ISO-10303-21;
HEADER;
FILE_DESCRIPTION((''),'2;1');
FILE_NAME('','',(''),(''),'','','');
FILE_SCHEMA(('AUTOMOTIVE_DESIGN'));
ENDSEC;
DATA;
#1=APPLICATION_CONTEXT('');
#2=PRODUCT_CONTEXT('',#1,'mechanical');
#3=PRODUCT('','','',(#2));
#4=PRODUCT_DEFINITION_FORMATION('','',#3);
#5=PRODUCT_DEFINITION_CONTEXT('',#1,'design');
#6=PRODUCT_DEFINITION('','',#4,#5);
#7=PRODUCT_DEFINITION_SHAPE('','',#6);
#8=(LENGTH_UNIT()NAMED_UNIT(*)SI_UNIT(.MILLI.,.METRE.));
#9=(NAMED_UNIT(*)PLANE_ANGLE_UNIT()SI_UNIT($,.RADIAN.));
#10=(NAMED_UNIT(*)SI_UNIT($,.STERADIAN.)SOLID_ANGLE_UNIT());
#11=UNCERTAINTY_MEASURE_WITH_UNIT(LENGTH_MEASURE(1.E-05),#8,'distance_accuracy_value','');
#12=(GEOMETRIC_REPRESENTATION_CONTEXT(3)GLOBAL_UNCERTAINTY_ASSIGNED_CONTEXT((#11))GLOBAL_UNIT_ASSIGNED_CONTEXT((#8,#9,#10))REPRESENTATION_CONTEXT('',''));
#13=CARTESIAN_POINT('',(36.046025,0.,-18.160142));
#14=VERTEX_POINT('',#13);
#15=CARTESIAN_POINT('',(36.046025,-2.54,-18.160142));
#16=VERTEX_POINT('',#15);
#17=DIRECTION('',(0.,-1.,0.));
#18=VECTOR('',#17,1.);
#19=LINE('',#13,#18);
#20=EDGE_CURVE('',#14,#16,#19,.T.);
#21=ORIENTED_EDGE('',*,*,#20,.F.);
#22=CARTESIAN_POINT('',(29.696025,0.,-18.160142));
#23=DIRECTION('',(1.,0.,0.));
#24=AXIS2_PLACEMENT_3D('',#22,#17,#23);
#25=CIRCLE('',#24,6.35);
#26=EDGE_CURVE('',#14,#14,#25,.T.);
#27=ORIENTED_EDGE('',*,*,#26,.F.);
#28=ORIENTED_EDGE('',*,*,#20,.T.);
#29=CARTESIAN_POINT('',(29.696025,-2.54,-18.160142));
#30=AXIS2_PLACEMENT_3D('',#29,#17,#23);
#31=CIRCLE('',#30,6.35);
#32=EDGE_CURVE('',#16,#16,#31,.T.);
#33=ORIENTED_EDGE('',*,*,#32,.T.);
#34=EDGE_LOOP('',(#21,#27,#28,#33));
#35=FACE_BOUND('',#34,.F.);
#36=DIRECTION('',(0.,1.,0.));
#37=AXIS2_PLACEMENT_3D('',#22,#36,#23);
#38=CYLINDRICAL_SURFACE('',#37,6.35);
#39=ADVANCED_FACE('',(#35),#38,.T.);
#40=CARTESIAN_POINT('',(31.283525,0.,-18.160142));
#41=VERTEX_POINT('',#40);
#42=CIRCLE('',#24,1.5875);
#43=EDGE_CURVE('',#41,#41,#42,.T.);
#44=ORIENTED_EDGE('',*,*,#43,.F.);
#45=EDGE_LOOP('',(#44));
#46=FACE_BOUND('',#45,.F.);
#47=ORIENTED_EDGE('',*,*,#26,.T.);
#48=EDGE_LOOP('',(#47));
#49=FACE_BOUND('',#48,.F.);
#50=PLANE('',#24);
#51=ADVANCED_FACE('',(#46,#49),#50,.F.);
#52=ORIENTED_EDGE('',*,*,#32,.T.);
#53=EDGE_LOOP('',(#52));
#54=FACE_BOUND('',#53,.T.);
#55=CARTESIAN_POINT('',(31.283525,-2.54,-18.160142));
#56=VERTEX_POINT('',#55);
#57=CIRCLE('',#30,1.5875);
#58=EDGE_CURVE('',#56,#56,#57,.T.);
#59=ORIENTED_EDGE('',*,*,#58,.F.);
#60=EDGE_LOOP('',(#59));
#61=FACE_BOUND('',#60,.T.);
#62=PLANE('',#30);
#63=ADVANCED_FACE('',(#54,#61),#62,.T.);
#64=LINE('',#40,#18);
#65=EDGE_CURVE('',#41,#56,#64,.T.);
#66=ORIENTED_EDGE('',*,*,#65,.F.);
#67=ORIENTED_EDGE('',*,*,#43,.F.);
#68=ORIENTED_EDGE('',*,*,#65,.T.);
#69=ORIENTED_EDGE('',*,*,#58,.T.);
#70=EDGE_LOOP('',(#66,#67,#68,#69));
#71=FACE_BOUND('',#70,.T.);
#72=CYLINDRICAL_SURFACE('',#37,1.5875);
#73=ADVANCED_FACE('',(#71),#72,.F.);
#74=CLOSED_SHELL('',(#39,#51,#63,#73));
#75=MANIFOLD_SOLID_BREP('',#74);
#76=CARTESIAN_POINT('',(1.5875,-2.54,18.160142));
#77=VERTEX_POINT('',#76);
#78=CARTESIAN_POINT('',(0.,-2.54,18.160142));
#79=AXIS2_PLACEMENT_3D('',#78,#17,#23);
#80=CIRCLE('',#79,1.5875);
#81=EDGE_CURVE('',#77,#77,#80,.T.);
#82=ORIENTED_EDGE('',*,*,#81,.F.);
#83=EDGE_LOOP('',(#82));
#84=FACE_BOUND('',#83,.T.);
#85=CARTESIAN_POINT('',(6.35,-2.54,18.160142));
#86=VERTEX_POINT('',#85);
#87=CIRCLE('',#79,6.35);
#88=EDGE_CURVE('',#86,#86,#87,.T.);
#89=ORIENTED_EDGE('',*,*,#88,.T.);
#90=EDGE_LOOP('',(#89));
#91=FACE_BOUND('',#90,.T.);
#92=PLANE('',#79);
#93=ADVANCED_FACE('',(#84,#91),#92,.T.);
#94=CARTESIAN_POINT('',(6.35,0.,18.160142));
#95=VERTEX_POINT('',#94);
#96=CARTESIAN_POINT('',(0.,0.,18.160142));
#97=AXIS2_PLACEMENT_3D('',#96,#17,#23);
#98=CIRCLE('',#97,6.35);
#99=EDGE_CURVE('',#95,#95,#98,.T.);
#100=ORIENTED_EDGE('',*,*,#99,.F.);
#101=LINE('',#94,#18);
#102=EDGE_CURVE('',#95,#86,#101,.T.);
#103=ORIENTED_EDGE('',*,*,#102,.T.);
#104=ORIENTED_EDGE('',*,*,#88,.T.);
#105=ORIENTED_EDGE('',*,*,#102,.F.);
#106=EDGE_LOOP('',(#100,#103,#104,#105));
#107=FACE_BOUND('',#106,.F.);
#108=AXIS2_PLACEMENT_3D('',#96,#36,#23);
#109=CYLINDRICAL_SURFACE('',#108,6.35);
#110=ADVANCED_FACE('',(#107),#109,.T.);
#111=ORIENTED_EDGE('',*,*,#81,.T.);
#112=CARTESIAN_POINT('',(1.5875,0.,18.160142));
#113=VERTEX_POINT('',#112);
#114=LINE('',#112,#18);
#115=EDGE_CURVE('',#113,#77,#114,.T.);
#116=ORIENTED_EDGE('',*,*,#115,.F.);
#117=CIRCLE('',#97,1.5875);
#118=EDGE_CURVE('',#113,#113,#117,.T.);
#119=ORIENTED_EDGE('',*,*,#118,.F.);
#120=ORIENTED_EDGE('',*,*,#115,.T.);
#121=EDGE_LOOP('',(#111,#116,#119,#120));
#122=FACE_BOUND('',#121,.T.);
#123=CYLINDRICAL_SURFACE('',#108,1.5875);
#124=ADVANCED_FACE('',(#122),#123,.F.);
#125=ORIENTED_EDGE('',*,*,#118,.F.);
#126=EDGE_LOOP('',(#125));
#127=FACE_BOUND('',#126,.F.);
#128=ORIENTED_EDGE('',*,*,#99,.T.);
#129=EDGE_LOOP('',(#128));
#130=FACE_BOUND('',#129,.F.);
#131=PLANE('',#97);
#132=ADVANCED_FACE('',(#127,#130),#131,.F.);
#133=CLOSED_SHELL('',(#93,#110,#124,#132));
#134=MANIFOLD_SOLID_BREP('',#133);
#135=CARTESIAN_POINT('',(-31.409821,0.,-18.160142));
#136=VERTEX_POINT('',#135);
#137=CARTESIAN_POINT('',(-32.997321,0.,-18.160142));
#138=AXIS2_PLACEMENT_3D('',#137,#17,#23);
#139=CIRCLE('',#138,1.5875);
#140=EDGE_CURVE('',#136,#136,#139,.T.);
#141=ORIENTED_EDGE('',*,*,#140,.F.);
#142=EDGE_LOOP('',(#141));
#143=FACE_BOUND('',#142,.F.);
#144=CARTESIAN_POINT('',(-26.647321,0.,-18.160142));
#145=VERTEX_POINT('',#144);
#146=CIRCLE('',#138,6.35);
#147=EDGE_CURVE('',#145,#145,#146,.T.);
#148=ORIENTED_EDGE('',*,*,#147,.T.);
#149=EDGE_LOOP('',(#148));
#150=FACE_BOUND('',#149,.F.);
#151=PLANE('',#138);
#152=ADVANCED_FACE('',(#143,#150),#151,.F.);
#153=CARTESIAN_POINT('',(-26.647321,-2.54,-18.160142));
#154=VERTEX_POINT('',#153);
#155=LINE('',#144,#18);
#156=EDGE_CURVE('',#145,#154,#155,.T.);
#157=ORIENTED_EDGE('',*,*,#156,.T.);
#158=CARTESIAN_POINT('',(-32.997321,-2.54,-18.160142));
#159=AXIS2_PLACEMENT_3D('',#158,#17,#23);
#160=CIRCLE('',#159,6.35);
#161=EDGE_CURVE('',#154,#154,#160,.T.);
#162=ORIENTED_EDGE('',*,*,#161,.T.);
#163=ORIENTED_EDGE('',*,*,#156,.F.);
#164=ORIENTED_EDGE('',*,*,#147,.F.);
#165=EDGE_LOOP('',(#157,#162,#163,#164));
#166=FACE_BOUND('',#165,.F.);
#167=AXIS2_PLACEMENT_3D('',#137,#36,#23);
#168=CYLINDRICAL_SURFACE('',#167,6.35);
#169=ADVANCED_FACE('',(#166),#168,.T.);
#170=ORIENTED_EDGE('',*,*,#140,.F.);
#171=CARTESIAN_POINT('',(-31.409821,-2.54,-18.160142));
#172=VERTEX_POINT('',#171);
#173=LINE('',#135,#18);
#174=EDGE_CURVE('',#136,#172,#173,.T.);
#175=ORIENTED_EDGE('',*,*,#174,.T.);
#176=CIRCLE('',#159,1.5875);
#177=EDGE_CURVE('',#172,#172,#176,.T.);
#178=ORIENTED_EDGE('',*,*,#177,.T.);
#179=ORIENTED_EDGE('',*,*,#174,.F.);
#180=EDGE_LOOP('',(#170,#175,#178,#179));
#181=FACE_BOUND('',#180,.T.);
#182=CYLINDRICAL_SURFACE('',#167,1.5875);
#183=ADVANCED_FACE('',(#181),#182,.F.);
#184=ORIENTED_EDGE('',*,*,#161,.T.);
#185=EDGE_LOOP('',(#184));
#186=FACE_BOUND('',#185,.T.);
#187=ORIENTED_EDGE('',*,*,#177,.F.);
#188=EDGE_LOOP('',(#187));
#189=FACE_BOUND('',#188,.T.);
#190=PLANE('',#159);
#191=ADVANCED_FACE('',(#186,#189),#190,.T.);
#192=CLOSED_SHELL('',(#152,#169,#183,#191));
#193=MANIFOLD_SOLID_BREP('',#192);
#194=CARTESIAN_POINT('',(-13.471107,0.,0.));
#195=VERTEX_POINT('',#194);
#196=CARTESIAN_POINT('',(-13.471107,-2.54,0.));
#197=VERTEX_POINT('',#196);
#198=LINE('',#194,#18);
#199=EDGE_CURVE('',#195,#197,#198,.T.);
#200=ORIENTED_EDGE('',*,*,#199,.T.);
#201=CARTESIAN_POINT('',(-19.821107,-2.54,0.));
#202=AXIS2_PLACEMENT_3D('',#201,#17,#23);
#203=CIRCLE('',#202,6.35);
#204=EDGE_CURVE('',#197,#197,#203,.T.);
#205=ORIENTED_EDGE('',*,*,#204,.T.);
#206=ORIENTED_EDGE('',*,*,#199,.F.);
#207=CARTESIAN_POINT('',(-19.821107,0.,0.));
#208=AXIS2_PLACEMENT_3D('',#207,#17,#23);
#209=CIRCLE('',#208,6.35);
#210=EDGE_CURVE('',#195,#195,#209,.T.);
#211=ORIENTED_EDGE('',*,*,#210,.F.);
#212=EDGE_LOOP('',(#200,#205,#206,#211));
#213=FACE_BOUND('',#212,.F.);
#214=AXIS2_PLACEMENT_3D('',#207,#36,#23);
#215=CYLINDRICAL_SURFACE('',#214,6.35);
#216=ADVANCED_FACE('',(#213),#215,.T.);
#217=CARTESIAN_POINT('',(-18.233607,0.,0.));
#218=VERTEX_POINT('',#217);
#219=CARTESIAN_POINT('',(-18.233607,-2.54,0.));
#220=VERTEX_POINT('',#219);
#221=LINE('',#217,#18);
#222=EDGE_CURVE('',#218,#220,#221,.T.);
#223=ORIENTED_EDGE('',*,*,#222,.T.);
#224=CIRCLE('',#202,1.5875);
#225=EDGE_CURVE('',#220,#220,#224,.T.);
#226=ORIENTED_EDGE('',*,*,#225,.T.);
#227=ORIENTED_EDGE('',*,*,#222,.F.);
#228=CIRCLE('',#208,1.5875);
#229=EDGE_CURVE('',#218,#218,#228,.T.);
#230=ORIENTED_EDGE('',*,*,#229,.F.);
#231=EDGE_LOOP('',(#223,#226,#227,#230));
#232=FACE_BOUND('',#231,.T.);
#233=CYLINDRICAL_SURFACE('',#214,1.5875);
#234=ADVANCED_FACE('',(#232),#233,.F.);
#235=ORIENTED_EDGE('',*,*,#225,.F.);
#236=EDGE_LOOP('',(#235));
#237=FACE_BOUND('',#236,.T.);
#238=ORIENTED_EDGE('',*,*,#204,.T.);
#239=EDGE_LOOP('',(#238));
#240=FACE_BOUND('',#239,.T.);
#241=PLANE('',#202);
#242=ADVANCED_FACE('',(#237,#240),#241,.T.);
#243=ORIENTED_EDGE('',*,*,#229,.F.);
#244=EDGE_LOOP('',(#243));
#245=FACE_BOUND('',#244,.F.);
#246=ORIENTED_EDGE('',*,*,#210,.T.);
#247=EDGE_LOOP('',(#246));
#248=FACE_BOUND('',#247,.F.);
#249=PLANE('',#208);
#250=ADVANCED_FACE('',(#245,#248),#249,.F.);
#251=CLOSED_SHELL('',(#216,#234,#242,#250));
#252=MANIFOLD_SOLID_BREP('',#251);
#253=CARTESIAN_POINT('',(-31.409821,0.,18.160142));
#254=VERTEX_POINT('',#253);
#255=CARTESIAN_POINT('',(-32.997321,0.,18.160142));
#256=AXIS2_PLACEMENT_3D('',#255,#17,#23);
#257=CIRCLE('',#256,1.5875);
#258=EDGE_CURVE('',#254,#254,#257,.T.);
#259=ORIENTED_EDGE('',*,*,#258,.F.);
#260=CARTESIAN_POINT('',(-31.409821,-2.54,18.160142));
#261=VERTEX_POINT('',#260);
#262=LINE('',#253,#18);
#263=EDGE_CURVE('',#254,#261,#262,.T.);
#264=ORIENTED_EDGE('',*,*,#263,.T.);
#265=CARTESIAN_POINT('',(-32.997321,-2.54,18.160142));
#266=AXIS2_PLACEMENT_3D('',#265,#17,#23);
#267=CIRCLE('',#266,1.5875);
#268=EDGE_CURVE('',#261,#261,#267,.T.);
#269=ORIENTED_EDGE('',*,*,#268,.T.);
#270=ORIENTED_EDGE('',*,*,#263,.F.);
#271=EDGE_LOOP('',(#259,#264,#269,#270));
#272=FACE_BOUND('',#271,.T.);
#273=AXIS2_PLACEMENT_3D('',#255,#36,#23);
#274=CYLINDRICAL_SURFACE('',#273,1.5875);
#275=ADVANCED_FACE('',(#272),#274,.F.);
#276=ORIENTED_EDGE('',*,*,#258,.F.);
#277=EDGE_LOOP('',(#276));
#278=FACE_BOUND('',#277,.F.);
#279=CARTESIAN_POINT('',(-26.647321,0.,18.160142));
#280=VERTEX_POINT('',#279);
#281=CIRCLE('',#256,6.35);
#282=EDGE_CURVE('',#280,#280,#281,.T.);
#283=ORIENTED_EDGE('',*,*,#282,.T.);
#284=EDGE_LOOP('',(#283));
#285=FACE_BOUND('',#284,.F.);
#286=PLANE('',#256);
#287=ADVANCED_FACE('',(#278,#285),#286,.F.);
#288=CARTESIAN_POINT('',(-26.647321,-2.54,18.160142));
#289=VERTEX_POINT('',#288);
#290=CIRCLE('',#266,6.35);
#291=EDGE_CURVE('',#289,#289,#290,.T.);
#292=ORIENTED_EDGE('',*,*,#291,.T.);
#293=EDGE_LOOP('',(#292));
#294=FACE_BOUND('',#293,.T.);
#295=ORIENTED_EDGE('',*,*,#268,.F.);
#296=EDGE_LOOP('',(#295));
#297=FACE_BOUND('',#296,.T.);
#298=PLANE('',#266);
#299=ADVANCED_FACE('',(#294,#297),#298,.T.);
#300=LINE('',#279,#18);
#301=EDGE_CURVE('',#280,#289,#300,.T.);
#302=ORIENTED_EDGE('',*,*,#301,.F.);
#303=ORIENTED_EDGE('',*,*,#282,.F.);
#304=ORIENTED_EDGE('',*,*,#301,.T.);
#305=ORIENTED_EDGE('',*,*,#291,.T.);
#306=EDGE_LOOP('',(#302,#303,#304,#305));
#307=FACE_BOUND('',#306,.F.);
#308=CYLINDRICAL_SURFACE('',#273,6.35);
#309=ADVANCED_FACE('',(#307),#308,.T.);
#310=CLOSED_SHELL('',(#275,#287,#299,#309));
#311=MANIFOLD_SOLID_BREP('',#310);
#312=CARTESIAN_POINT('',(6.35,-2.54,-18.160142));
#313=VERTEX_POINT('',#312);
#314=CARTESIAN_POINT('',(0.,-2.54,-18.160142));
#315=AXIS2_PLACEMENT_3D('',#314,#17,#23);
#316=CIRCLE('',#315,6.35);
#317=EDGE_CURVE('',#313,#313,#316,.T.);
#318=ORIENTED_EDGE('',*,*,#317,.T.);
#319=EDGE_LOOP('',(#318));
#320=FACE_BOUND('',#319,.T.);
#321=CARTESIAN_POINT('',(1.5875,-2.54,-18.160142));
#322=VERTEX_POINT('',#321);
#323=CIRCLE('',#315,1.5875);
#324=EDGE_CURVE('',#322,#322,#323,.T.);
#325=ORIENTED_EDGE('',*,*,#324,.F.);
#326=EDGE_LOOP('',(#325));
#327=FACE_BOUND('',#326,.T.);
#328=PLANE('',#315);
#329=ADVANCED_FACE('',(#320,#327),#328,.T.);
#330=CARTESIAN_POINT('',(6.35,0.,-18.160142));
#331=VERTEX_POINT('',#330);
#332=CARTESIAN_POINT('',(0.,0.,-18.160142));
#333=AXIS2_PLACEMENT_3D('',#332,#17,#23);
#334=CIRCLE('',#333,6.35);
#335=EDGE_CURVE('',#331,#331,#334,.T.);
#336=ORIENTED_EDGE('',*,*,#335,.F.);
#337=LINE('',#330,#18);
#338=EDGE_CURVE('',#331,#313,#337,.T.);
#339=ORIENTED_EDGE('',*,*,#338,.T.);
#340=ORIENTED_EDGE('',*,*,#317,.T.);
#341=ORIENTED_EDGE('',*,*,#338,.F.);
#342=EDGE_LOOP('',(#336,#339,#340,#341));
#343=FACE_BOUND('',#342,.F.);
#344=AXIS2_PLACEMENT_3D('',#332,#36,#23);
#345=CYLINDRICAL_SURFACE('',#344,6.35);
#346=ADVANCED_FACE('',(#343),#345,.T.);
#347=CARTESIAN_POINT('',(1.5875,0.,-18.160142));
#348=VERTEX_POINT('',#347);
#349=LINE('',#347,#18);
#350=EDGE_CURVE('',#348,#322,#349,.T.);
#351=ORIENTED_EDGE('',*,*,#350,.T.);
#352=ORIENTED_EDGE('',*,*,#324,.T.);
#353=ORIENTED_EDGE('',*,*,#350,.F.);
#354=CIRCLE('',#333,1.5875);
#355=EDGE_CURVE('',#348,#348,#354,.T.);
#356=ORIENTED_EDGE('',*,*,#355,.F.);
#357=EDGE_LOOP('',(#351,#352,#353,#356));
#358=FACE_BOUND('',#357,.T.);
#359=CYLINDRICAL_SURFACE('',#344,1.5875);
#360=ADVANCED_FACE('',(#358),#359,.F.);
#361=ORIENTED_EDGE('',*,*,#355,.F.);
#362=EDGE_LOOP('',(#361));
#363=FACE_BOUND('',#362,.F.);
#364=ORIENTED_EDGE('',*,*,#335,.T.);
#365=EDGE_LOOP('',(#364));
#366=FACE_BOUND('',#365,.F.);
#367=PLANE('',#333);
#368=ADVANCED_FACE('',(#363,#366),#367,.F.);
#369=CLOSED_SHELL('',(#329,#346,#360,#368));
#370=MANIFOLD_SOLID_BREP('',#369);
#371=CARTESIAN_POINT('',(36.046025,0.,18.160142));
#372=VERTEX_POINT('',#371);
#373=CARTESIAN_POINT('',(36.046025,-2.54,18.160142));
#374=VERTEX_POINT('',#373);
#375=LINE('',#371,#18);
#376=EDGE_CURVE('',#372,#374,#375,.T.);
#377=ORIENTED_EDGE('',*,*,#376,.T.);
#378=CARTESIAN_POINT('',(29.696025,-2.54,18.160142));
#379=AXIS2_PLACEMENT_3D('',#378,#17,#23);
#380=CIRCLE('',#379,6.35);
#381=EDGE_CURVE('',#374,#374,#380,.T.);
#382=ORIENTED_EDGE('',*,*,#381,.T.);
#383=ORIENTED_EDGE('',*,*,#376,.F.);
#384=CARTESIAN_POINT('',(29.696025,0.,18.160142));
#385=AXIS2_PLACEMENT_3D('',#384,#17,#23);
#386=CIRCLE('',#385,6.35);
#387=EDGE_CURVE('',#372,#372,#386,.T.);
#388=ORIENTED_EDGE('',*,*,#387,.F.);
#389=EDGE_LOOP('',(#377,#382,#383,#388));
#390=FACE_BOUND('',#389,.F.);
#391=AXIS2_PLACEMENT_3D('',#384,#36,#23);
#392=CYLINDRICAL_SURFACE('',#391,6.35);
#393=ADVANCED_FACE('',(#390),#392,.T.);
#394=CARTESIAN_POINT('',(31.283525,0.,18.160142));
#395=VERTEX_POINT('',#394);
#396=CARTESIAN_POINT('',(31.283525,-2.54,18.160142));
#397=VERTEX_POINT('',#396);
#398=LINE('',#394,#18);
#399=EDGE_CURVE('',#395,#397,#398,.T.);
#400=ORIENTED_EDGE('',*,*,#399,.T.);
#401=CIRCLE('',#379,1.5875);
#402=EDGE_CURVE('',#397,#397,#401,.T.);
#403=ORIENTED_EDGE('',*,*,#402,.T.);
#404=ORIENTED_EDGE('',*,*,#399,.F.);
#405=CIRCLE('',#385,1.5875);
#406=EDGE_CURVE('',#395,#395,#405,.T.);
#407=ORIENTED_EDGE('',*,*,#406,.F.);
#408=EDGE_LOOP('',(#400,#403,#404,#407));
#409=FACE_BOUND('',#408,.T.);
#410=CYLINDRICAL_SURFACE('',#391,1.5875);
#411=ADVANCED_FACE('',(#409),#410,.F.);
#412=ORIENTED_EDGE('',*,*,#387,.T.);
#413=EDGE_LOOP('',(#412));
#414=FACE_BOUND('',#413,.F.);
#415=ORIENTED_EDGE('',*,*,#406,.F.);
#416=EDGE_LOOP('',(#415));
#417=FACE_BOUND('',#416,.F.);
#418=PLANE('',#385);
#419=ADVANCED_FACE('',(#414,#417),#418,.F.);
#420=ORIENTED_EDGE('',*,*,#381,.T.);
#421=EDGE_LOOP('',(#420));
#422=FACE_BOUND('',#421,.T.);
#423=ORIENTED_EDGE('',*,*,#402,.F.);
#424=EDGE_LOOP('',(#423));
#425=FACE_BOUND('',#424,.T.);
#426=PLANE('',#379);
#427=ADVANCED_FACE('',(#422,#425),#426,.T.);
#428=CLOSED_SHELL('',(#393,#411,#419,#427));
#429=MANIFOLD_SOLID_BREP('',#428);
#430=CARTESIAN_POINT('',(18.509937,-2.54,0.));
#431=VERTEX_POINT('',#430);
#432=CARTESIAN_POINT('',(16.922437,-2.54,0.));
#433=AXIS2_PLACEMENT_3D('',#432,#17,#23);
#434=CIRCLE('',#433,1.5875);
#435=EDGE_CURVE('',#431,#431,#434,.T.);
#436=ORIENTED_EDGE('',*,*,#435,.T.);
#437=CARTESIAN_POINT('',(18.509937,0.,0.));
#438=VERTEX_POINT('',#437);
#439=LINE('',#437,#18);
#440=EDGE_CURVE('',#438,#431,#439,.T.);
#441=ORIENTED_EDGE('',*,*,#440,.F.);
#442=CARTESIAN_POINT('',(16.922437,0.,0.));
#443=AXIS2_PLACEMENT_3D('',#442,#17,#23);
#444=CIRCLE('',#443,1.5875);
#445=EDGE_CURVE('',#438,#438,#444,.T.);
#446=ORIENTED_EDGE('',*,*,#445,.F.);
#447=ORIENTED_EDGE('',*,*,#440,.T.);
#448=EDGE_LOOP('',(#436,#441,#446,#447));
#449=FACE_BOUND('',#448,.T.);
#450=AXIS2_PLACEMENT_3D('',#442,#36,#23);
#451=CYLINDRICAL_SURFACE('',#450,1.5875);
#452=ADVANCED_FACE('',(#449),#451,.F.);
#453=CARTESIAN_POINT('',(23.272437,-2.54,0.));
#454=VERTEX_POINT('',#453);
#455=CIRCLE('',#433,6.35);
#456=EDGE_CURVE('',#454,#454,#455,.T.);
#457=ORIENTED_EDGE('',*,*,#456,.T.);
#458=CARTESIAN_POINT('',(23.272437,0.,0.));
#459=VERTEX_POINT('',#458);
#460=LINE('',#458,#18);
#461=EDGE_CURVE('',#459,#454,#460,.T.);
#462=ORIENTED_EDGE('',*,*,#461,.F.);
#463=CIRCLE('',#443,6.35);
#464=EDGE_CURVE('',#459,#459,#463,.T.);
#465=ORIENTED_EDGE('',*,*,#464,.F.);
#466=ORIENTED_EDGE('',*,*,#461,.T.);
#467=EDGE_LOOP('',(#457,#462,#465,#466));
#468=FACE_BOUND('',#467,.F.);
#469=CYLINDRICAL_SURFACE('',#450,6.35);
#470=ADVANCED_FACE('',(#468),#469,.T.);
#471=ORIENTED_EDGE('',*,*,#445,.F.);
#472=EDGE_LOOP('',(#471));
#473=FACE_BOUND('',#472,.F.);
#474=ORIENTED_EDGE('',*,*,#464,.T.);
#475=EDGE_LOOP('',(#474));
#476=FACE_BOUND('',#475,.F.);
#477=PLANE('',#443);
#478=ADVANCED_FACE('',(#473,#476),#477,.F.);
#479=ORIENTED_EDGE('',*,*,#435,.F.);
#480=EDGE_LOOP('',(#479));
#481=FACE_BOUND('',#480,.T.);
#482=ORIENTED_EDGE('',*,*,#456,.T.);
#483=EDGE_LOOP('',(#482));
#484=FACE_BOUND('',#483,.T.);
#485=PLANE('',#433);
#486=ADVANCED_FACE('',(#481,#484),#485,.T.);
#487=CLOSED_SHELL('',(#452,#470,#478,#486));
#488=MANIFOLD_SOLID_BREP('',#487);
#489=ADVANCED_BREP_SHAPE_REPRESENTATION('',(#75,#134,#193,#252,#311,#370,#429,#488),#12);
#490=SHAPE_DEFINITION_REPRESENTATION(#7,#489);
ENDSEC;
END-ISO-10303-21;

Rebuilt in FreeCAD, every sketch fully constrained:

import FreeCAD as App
import Part
import Sketcher
Q = App.Units.Quantity

doc = App.newDocument("Part")
body = doc.addObject("PartDesign::Body", "Body")
body.AllowCompound = True

# Sketch on XZ plane
sketch1 = body.newObject("Sketcher::SketchObject", "Sketch")
sketch1.AttachmentSupport = (doc.getObject("XZ_Plane"), [""])
sketch1.MapMode = "FlatFace"
sketch1.addGeometry([
    Part.Circle(App.Vector(-33, 18.2, 0), App.Vector(0, 0, 1), 6.3),  # 0
    Part.Circle(App.Vector(-33, 18.2, 0), App.Vector(0, 0, 1), 1.6),  # 1
    Part.Circle(App.Vector(0, 18.2, 0), App.Vector(0, 0, 1), 6.3),  # 2
    Part.Circle(App.Vector(0, 18.2, 0), App.Vector(0, 0, 1), 1.6),  # 3
    Part.Circle(App.Vector(29.7, 18.2, 0), App.Vector(0, 0, 1), 6.3),  # 4
    Part.Circle(App.Vector(29.7, 18.2, 0), App.Vector(0, 0, 1), 1.6),  # 5
    Part.Circle(App.Vector(-33, -18.2, 0), App.Vector(0, 0, 1), 6.3),  # 6
    Part.Circle(App.Vector(-33, -18.2, 0), App.Vector(0, 0, 1), 1.6),  # 7
    Part.Circle(App.Vector(0, -18.2, 0), App.Vector(0, 0, 1), 6.3),  # 8
    Part.Circle(App.Vector(0, -18.2, 0), App.Vector(0, 0, 1), 1.6),  # 9
    Part.Circle(App.Vector(29.7, -18.2, 0), App.Vector(0, 0, 1), 6.3),  # 10
    Part.Circle(App.Vector(29.7, -18.2, 0), App.Vector(0, 0, 1), 1.6),  # 11
    Part.Circle(App.Vector(-19.8, 0, 0), App.Vector(0, 0, 1), 6.3),  # 12
    Part.Circle(App.Vector(-19.8, 0, 0), App.Vector(0, 0, 1), 1.6),  # 13
    Part.Circle(App.Vector(16.9, 0, 0), App.Vector(0, 0, 1), 6.3),  # 14
    Part.Circle(App.Vector(16.9, 0, 0), App.Vector(0, 0, 1), 1.6),  # 15
], False)
sketch1.addConstraint([
    Sketcher.Constraint("Coincident", 1, 3, 0, 3),
    Sketcher.Constraint("Coincident", 3, 3, 2, 3),
    Sketcher.Constraint("Coincident", 5, 3, 4, 3),
    Sketcher.Constraint("Coincident", 7, 3, 6, 3),
    Sketcher.Constraint("Coincident", 9, 3, 8, 3),
    Sketcher.Constraint("Coincident", 11, 3, 10, 3),
    Sketcher.Constraint("Coincident", 13, 3, 12, 3),
    Sketcher.Constraint("Coincident", 15, 3, 14, 3),
    Sketcher.Constraint("Equal", 0, 2),
    Sketcher.Constraint("Equal", 1, 3),
    Sketcher.Constraint("Equal", 2, 4),
    Sketcher.Constraint("Equal", 3, 5),
    Sketcher.Constraint("Equal", 4, 6),
    Sketcher.Constraint("Equal", 5, 7),
    Sketcher.Constraint("Equal", 6, 8),
    Sketcher.Constraint("Equal", 7, 9),
    Sketcher.Constraint("Equal", 8, 10),
    Sketcher.Constraint("Equal", 9, 11),
    Sketcher.Constraint("Equal", 10, 12),
    Sketcher.Constraint("Equal", 11, 13),
    Sketcher.Constraint("Equal", 12, 14),
    Sketcher.Constraint("Equal", 13, 15),
    Sketcher.Constraint("Symmetric", 2, 3, 8, 3, -1, 1),
    Sketcher.Constraint("Symmetric", 0, 3, 6, 3, -1),
    Sketcher.Constraint("Symmetric", 4, 3, 10, 3, -1),
    Sketcher.Constraint("PointOnObject", 2, 3, -2),
    Sketcher.Constraint("PointOnObject", 12, 3, -1),
    Sketcher.Constraint("PointOnObject", 14, 3, -1),
    Sketcher.Constraint("Horizontal", 1, 3, 2, 3),
    Sketcher.Constraint("Horizontal", 3, 3, 4, 3),
    Sketcher.Constraint("Diameter", 0, Q("0.5 in")),
    Sketcher.Constraint("Diameter", 1, Q("0.125 in")),
    Sketcher.Constraint("DistanceX", 0, 3, -1, 1, 32.997321),
    Sketcher.Constraint("DistanceY", -1, 1, 0, 3, 18.160142),
    Sketcher.Constraint("DistanceX", -1, 1, 4, 3, 29.696025),
    Sketcher.Constraint("DistanceX", 12, 3, -1, 1, 19.821107),
    Sketcher.Constraint("DistanceX", -1, 1, 14, 3, 16.922437),
])
pad1 = body.newObject("PartDesign::Pad", "Pad")
pad1.Profile = sketch1
pad1.Length = Q("0.1 in")

doc.recompute()
